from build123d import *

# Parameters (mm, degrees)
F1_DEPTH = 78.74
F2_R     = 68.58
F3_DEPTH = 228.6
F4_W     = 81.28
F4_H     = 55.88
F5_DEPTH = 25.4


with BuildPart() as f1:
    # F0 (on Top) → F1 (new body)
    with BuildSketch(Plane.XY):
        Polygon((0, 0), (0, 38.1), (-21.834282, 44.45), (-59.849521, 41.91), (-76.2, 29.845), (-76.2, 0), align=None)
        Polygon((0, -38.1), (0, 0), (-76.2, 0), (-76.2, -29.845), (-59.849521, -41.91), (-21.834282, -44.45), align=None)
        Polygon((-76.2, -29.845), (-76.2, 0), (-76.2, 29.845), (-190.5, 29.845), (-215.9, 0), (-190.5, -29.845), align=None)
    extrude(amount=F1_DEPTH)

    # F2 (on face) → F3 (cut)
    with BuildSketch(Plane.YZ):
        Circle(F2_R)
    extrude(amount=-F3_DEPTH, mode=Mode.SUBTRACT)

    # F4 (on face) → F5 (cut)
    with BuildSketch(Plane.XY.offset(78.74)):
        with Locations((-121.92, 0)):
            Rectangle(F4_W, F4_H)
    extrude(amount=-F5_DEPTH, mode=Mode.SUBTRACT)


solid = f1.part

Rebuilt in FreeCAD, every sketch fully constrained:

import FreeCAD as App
import Part
import Sketcher
Q = App.Units.Quantity

doc = App.newDocument("Part")
body = doc.addObject("PartDesign::Body", "Body")

# Sketch on XY plane
sketch1 = body.newObject("Sketcher::SketchObject", "Sketch")
sketch1.AttachmentSupport = (doc.getObject("XY_Plane"), [""])
sketch1.MapMode = "FlatFace"
sketch1.addGeometry(Part.LineSegment(App.Vector(0, 38, 0), App.Vector(-22, 44, 0)), False)
sketch1.addGeometry(Part.LineSegment(App.Vector(-22, 44, 0), App.Vector(-60, 42, 0)), False)
sketch1.addGeometry(Part.LineSegment(App.Vector(-60, 42, 0), App.Vector(-76, 30, 0)), False)
sketch1.addGeometry(Part.LineSegment(App.Vector(-76, 30, 0), App.Vector(-190, 30, 0)), False)
sketch1.addGeometry(Part.LineSegment(App.Vector(-190, 30, 0), App.Vector(-216, 0, 0)), False)
sketch1.addGeometry(Part.LineSegment(App.Vector(-216, 0, 0), App.Vector(-190, -30, 0)), False)
sketch1.addGeometry(Part.LineSegment(App.Vector(-190, -30, 0), App.Vector(-76, -30, 0)), False)
sketch1.addGeometry(Part.LineSegment(App.Vector(-76, -30, 0), App.Vector(-60, -42, 0)), False)
sketch1.addGeometry(Part.LineSegment(App.Vector(-60, -42, 0), App.Vector(-22, -44, 0)), False)
sketch1.addGeometry(Part.LineSegment(App.Vector(-22, -44, 0), App.Vector(0, -38, 0)), False)
sketch1.addGeometry(Part.LineSegment(App.Vector(0, -38, 0), App.Vector(0, 38, 0)), False)
sketch1.addConstraint(Sketcher.Constraint("Coincident", 0, 2, 1, 1))
sketch1.addConstraint(Sketcher.Constraint("Coincident", 1, 2, 2, 1))
sketch1.addConstraint(Sketcher.Constraint("Coincident", 2, 2, 3, 1))
sketch1.addConstraint(Sketcher.Constraint("Coincident", 3, 2, 4, 1))
sketch1.addConstraint(Sketcher.Constraint("Coincident", 4, 2, 5, 1))
sketch1.addConstraint(Sketcher.Constraint("Coincident", 5, 2, 6, 1))
sketch1.addConstraint(Sketcher.Constraint("Coincident", 6, 2, 7, 1))
sketch1.addConstraint(Sketcher.Constraint("Coincident", 7, 2, 8, 1))
sketch1.addConstraint(Sketcher.Constraint("Coincident", 8, 2, 9, 1))
sketch1.addConstraint(Sketcher.Constraint("Coincident", 9, 2, 10, 1))
sketch1.addConstraint(Sketcher.Constraint("Coincident", 10, 2, 0, 1))
sketch1.addConstraint(Sketcher.Constraint("Horizontal", 3))
sketch1.addConstraint(Sketcher.Constraint("Horizontal", 6))
sketch1.addConstraint(Sketcher.Constraint("Vertical", 10))
sketch1.addConstraint(Sketcher.Constraint("Symmetric", 9, 2, 10, 2, -1, 1))
sketch1.addConstraint(Sketcher.Constraint("Symmetric", 3, 2, 5, 2, -1))
sketch1.addConstraint(Sketcher.Constraint("Symmetric", 1, 2, 7, 2, -1))
sketch1.addConstraint(Sketcher.Constraint("Symmetric", 0, 2, 8, 2, -1))
sketch1.addConstraint(Sketcher.Constraint("PointOnObject", 4, 2, -1))
sketch1.addConstraint(Sketcher.Constraint("Vertical", 2, 2, 6, 2))
sketch1.addConstraint(Sketcher.Constraint("DistanceY", 10, 1, 10, 2, Q("3 in")))
sketch1.addConstraint(Sketcher.Constraint("DistanceX", 3, 2, 3, 1, Q("4.5 in")))
sketch1.addConstraint(Sketcher.Constraint("DistanceX", 2, 2, -1, 1, Q("3 in")))
sketch1.addConstraint(Sketcher.Constraint("DistanceX", 4, 2, 3, 2, Q("1 in")))
sketch1.addConstraint(Sketcher.Constraint("Distance", 1, Q("1.5 in")))
sketch1.addConstraint(Sketcher.Constraint("Distance", 2, Q("0.8 in")))
sketch1.addConstraint(Sketcher.Constraint("DistanceY", 1, 2, 0, 2, Q("0.1 in")))
sketch1.addConstraint(Sketcher.Constraint("DistanceY", 7, 2, 1, 2, Q("3.3 in")))
sketch1.addConstraint(Sketcher.Constraint("DistanceY", 5, 2, 3, 2, Q("2.35 in")))
pad1 = body.newObject("PartDesign::Pad", "Pad")
pad1.Profile = sketch1
pad1.Length = Q("3.1 in")

# Sketch on YZ plane
sketch2 = body.newObject("Sketcher::SketchObject", "Sketch001")
sketch2.AttachmentSupport = (doc.getObject("YZ_Plane"), [""])
sketch2.MapMode = "FlatFace"
sketch2.addGeometry(Part.Circle(App.Vector(0, 0, 0), App.Vector(0, 0, 1), 69), False)
sketch2.addConstraint(Sketcher.Constraint("Coincident", 0, 3, -1, 1))
sketch2.addConstraint(Sketcher.Constraint("Diameter", 0, Q("5.4 in")))
pocket1 = body.newObject("PartDesign::Pocket", "Pocket")
pocket1.Profile = sketch2
pocket1.Length = Q("9 in")

# Sketch on XY plane
sketch3 = body.newObject("Sketcher::SketchObject", "Sketch002")
sketch3.AttachmentSupport = (doc.getObject("XY_Plane"), [""])
sketch3.MapMode = "FlatFace"
sketch3.AttachmentOffset = App.Placement(App.Vector(0, 0, 3.1 * 25.4), App.Rotation())
sketch3.addGeometry(Part.LineSegment(App.Vector(-163, 28, 0), App.Vector(-163, -28, 0)), False)
sketch3.addGeometry(Part.LineSegment(App.Vector(-163, -28, 0), App.Vector(-81, -28, 0)), False)
sketch3.addGeometry(Part.LineSegment(App.Vector(-81, -28, 0), App.Vector(-81, 28, 0)), False)
sketch3.addGeometry(Part.LineSegment(App.Vector(-81, 28, 0), App.Vector(-163, 28, 0)), False)
sketch3.addConstraint(Sketcher.Constraint("Coincident", 0, 2, 1, 1))
sketch3.addConstraint(Sketcher.Constraint("Coincident", 1, 2, 2, 1))
sketch3.addConstraint(Sketcher.Constraint("Coincident", 2, 2, 3, 1))
sketch3.addConstraint(Sketcher.Constraint("Coincident", 3, 2, 0, 1))
sketch3.addConstraint(Sketcher.Constraint("Vertical", 0))
sketch3.addConstraint(Sketcher.Constraint("Horizontal", 1))
sketch3.addConstraint(Sketcher.Constraint("Vertical", 2))
sketch3.addConstraint(Sketcher.Constraint("Horizontal", 3))
sketch3.addConstraint(Sketcher.Constraint("DistanceX", 1, 1, 1, 2, Q("3.2 in")))
sketch3.addConstraint(Sketcher.Constraint("DistanceY", 0, 2, 0, 1, Q("2.2 in")))
sketch3.addConstraint(Sketcher.Constraint("DistanceX", 0, 2, -1, 1, Q("6.4 in")))
sketch3.addConstraint(Sketcher.Constraint("DistanceY", 0, 2, -1, 1, Q("1.1 in")))
pocket2 = body.newObject("PartDesign::Pocket", "Pocket001")
pocket2.Profile = sketch3
pocket2.Length = Q("1 in")

doc.recompute()
